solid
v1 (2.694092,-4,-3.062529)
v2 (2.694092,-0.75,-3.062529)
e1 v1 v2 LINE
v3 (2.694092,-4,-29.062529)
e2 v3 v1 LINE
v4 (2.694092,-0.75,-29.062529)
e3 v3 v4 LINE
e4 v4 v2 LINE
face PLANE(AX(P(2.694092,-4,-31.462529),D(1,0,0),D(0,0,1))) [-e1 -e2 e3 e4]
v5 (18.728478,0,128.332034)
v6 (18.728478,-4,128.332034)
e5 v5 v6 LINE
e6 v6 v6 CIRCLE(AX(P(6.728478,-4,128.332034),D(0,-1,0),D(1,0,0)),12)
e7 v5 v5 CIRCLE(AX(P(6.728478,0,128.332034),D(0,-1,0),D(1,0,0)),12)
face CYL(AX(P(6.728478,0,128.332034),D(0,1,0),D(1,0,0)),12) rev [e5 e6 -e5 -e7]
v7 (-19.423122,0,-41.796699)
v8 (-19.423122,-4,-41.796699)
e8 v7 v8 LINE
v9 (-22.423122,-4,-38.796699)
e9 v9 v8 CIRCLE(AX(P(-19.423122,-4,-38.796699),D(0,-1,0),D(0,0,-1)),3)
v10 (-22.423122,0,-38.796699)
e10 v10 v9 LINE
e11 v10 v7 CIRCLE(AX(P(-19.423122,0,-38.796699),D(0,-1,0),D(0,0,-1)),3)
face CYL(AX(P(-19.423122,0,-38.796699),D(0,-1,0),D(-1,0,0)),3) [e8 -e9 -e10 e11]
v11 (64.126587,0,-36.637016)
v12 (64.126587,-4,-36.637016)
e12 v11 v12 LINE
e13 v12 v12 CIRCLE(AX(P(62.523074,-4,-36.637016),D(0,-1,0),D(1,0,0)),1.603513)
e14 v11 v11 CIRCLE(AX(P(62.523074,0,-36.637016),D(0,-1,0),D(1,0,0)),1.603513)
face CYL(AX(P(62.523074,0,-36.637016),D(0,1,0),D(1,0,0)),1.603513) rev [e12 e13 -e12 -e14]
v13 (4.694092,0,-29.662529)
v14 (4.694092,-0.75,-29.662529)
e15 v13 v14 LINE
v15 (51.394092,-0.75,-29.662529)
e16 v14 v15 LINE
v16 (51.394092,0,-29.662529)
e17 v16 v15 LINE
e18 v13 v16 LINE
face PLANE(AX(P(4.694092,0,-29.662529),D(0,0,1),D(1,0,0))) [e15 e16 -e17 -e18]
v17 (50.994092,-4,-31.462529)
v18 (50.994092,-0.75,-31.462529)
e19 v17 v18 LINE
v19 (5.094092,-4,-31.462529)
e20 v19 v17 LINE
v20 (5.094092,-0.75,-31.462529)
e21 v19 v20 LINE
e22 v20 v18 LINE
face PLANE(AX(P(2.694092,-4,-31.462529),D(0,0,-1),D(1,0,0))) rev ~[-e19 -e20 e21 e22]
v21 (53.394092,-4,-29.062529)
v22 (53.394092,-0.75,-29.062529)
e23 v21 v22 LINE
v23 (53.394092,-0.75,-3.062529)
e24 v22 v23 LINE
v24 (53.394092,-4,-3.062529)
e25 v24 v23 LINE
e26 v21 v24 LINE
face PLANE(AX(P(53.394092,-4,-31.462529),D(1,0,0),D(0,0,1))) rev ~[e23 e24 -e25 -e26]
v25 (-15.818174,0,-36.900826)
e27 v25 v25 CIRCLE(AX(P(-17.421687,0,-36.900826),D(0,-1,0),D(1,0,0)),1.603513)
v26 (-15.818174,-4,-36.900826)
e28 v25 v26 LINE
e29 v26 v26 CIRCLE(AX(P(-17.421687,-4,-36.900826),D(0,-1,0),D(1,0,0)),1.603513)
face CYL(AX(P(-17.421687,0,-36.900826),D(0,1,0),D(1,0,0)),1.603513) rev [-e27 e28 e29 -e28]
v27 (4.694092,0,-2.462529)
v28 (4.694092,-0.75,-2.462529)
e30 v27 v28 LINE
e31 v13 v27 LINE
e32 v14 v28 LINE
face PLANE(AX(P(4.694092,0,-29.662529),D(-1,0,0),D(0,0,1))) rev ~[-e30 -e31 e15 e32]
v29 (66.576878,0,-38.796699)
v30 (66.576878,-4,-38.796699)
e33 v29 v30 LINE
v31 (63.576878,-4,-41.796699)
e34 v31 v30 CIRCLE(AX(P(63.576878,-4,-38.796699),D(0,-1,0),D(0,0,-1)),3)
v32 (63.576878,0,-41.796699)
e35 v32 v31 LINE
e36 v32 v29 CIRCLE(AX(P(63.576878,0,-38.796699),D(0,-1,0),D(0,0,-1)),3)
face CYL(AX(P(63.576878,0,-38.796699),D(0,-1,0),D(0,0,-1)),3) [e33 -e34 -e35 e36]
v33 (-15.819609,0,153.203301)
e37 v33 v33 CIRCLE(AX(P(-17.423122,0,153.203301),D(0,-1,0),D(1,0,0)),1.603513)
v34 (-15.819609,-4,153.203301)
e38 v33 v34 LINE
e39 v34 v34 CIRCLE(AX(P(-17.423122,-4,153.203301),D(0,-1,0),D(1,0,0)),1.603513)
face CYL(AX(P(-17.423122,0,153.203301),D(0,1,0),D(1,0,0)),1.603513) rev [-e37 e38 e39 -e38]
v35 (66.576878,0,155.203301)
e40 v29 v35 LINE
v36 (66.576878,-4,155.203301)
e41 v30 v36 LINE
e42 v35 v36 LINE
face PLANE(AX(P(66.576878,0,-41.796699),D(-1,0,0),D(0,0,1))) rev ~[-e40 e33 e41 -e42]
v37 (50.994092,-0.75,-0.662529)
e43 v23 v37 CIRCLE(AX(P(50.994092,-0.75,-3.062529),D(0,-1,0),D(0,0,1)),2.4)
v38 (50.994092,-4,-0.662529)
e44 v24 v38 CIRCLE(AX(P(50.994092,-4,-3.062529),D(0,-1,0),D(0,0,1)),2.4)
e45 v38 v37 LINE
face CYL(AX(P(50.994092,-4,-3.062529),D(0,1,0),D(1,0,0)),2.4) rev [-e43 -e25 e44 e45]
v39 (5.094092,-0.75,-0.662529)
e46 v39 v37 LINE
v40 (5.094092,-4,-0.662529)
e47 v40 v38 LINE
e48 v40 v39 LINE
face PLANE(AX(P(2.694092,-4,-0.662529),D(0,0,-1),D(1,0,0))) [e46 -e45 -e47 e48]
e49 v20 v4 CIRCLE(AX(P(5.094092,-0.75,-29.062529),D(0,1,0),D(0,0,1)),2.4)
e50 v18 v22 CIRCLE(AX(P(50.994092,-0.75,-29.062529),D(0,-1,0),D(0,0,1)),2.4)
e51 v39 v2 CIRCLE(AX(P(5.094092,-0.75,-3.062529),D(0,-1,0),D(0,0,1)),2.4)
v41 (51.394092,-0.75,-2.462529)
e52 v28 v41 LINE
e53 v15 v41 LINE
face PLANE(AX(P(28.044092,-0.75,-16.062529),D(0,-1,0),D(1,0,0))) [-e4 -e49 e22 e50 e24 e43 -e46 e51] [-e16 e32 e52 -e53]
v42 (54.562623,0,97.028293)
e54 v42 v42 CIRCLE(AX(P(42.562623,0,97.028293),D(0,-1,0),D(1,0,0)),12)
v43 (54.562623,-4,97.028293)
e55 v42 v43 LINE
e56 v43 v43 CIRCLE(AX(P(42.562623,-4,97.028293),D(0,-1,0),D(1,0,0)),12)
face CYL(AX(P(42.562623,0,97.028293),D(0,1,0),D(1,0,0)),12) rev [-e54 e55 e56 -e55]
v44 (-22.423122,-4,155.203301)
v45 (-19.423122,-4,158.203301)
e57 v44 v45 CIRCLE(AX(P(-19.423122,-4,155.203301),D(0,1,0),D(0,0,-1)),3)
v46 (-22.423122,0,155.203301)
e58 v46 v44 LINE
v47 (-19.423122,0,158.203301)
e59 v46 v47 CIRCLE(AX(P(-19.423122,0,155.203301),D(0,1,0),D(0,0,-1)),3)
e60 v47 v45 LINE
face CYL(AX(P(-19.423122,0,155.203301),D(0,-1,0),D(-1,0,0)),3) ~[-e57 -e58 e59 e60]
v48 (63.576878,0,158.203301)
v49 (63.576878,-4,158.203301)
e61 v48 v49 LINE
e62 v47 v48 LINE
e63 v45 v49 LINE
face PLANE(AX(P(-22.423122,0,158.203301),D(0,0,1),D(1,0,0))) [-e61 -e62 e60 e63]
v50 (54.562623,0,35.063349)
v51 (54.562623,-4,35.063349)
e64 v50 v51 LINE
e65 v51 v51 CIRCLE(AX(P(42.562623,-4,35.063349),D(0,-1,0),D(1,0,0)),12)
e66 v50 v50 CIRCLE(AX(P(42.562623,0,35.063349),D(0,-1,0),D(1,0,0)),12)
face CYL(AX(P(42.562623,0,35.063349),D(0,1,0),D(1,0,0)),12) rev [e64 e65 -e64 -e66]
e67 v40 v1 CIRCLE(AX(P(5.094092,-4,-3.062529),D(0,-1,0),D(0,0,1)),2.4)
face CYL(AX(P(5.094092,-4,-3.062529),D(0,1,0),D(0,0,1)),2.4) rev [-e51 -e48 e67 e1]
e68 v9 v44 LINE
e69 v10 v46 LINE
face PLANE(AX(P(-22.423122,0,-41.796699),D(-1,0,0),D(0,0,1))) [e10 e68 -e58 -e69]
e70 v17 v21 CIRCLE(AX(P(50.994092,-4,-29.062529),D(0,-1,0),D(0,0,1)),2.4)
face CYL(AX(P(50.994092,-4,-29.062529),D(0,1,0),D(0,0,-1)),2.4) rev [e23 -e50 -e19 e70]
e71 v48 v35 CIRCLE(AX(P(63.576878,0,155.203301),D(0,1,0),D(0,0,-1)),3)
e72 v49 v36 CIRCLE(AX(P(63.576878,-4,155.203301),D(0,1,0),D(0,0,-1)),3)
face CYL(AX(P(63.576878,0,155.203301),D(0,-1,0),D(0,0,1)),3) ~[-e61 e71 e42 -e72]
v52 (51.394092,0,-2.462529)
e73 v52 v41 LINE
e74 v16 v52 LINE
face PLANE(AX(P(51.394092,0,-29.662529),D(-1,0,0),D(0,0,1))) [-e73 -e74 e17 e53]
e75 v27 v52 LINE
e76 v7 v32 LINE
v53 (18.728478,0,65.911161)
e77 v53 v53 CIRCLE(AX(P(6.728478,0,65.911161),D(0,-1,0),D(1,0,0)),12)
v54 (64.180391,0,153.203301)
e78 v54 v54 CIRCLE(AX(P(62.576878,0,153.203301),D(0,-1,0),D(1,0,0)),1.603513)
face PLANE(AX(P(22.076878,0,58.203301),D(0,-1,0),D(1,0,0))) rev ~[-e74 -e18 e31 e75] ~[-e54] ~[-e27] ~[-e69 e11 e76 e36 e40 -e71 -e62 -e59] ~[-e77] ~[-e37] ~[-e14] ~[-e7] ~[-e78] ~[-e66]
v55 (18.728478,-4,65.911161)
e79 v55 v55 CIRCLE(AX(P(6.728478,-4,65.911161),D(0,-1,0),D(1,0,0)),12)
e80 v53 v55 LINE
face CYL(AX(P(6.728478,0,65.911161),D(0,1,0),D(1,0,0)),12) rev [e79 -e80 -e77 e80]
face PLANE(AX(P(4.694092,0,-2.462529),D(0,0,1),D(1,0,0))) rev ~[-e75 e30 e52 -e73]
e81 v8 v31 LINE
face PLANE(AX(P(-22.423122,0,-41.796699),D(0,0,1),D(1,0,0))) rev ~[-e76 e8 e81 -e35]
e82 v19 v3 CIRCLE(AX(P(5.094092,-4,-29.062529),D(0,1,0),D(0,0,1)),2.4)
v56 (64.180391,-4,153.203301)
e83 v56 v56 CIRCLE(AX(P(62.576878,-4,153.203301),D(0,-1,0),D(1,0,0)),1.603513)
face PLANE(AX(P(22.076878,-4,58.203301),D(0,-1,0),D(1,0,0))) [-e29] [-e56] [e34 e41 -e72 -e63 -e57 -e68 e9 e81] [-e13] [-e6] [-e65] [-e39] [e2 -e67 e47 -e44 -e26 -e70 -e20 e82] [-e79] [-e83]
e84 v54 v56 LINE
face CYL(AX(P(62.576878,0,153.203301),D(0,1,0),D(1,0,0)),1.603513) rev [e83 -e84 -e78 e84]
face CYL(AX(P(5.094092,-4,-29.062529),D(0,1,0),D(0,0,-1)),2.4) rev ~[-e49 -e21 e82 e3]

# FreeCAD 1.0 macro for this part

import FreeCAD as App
import Part
import Sketcher
from FreeCAD import Vector
Q = App.Units.Quantity


def edges_at(feature, points):
    """Names of the edges that pass closest to the given points."""
    edges = feature.Shape.Edges
    near = lambda p: min(range(len(edges)), key=lambda i: edges[i].distToShape(Part.Vertex(*p))[0])
    return sorted({f"Edge{near(p) + 1}" for p in points})

doc = App.newDocument("Part")
body = doc.addObject("PartDesign::Body", "Body")

sketch1 = body.newObject("Sketcher::SketchObject", "Sketch")
sketch1.AttachmentSupport = (doc.getObject("XZ_Plane"), [""])
sketch1.MapMode = "FlatFace"
sketch1.addGeometry([
    Part.LineSegment(Vector(-22.4, 158.2, 0), Vector(-22.4, -41.8, 0)),
    Part.LineSegment(Vector(-22.4, -41.8, 0), Vector(66.6, -41.8, 0)),
    Part.LineSegment(Vector(66.6, -41.8, 0), Vector(66.6, 158.2, 0)),
    Part.LineSegment(Vector(66.6, 158.2, 0), Vector(-22.4, 158.2, 0)),
    Part.Circle(Vector(-17.4, -36.9, 0), Vector(0, 0, 1), 1.6),
    Part.LineSegment(Vector(51.4, -29.7, 0), Vector(4.7, -29.7, 0)),
    Part.LineSegment(Vector(4.7, -29.7, 0), Vector(4.7, -2.5, 0)),
    Part.LineSegment(Vector(4.7, -2.5, 0), Vector(51.4, -2.5, 0)),
    Part.LineSegment(Vector(51.4, -2.5, 0), Vector(51.4, -29.7, 0)),
    Part.Circle(Vector(62.5, -36.6, 0), Vector(0, 0, 1), 1.6),
    Part.Circle(Vector(42.6, 35.1, 0), Vector(0, 0, 1), 12),
    Part.Circle(Vector(6.7, 65.9, 0), Vector(0, 0, 1), 12),
    Part.Circle(Vector(-17.4, 153.2, 0), Vector(0, 0, 1), 1.6),
    Part.Circle(Vector(6.7, 128.3, 0), Vector(0, 0, 1), 12),
    Part.Circle(Vector(42.6, 97, 0), Vector(0, 0, 1), 12),
    Part.Circle(Vector(62.6, 153.2, 0), Vector(0, 0, 1), 1.6),
], False)
sketch1.addConstraint([
    Sketcher.Constraint("Coincident", 0, 2, 1, 1),
    Sketcher.Constraint("Coincident", 1, 2, 2, 1),
    Sketcher.Constraint("Coincident", 2, 2, 3, 1),
    Sketcher.Constraint("Coincident", 3, 2, 0, 1),
    Sketcher.Constraint("Coincident", 5, 2, 6, 1),
    Sketcher.Constraint("Coincident", 6, 2, 7, 1),
    Sketcher.Constraint("Coincident", 7, 2, 8, 1),
    Sketcher.Constraint("Coincident", 8, 2, 5, 1),
    Sketcher.Constraint("Vertical", 0),
    Sketcher.Constraint("Horizontal", 1),
    Sketcher.Constraint("Vertical", 2),
    Sketcher.Constraint("Horizontal", 3),
    Sketcher.Constraint("Horizontal", 5),
    Sketcher.Constraint("Vertical", 6),
    Sketcher.Constraint("Horizontal", 7),
    Sketcher.Constraint("Vertical", 8),
    Sketcher.Constraint("Equal", 4, 9),
    Sketcher.Constraint("Equal", 10, 11),
    Sketcher.Constraint("Equal", 9, 12),
    Sketcher.Constraint("Equal", 11, 13),
    Sketcher.Constraint("Equal", 13, 14),
    Sketcher.Constraint("Equal", 12, 15),
    Sketcher.Constraint("Horizontal", 12, 3, 15, 3),
    Sketcher.Constraint("Vertical", 11, 3, 13, 3),
    Sketcher.Constraint("Vertical", 10, 3, 14, 3),
    Sketcher.Constraint("Diameter", 10, Q("24 mm")),
    Sketcher.Constraint("DistanceX", 1, 1, 1, 2, Q("89 mm")),
    Sketcher.Constraint("DistanceY", 0, 2, 0, 1, Q("200 mm")),
    Sketcher.Constraint("DistanceX", 5, 2, 5, 1, Q("46.7 mm")),
    Sketcher.Constraint("DistanceY", 6, 1, 6, 2, Q("27.2 mm")),
    Sketcher.Constraint("DistanceX", 12, 3, 15, 3, Q("80 mm")),
    Sketcher.Constraint("DistanceX", 15, 3, 2, 2, Q("4 mm")),
    Sketcher.Constraint("DistanceY", 15, 3, 2, 2, Q("5 mm")),
    Sketcher.Constraint("Diameter", 4, Q("3.207026 mm")),
    Sketcher.Constraint("DistanceY", -1, 1, 12, 3, Q("153.203301 mm")),
    Sketcher.Constraint("DistanceX", 12, 3, 11, 3, Q("24.1516 mm")),
    Sketcher.Constraint("DistanceY", -1, 1, 10, 3, Q("35.063349 mm")),
    Sketcher.Constraint("DistanceY", -1, 1, 11, 3, Q("65.911161 mm")),
    Sketcher.Constraint("DistanceX", 12, 3, -1, 1, Q("17.423122 mm")),
    Sketcher.Constraint("DistanceY", 5, 2, -1, 1, Q("29.662529 mm")),
    Sketcher.Constraint("DistanceX", 4, 3, 9, 3, Q("79.944761 mm")),
    Sketcher.Constraint("DistanceY", 4, 3, 9, 3, Q("0.26381 mm")),
    Sketcher.Constraint("DistanceX", 10, 3, 9, 3, Q("19.960451 mm")),
    Sketcher.Constraint("DistanceY", 4, 3, 13, 3, Q("165.23286 mm")),
    Sketcher.Constraint("DistanceY", 11, 3, 14, 3, Q("31.117132 mm")),
    Sketcher.Constraint("DistanceY", 14, 3, 13, 3, Q("31.303741 mm")),
    Sketcher.Constraint("DistanceX", 4, 3, 5, 2, Q("22.115779 mm")),
    Sketcher.Constraint("DistanceX", 4, 3, -1, 1, Q("17.421687 mm")),
])
pad1 = body.newObject("PartDesign::Pad", "Pad")
pad1.Profile = sketch1
pad1.Length = 4
doc.recompute()

fillet = body.newObject("PartDesign::Fillet", "Fillet")
fillet.Base = (pad1, edges_at(pad1, [
    (-22.423, -2, 158.203),
    (66.577, -2, 158.203),
    (66.577, -2, -41.797),
    (-22.423, -2, -41.797),
]))
fillet.Radius = 3

sketch2 = body.newObject("Sketcher::SketchObject", "Sketch001")
sketch2.AttachmentSupport = (doc.getObject("XZ_Plane"), [""])
sketch2.MapMode = "FlatFace"
sketch2.AttachmentOffset = App.Placement(Vector(0, 0, 4), App.Rotation())
sketch2.addGeometry([
    Part.LineSegment(Vector(3, -1, 0), Vector(3, -31, 0)),
    Part.LineSegment(Vector(3, -31, 0), Vector(53, -31, 0)),
    Part.LineSegment(Vector(53, -31, 0), Vector(53, -1, 0)),
    Part.LineSegment(Vector(53, -1, 0), Vector(3, -1, 0)),
], False)
sketch2.addConstraint([
    Sketcher.Constraint("Coincident", 0, 2, 1, 1),
    Sketcher.Constraint("Coincident", 1, 2, 2, 1),
    Sketcher.Constraint("Coincident", 2, 2, 3, 1),
    Sketcher.Constraint("Coincident", 3, 2, 0, 1),
    Sketcher.Constraint("Vertical", 0),
    Sketcher.Constraint("Horizontal", 1),
    Sketcher.Constraint("Vertical", 2),
    Sketcher.Constraint("Horizontal", 3),
    Sketcher.Constraint("DistanceX", 1, 1, 1, 2, Q("50.7 mm")),
    Sketcher.Constraint("DistanceY", 0, 2, 0, 1, Q("30.8 mm")),
    Sketcher.Constraint("DistanceX", -1, 1, 0, 2, Q("2.694092 mm")),
    Sketcher.Constraint("DistanceY", 0, 2, -1, 1, Q("31.462529 mm")),
])
pocket1 = body.newObject("PartDesign::Pocket", "Pocket")
pocket1.Profile = sketch2
pocket1.Length = 3.25
doc.recompute()

fillet2 = body.newObject("PartDesign::Fillet", "Fillet001")
fillet2.Base = (pocket1, edges_at(pocket1, [
    (2.694, -2.375, -0.663),
    (53.394, -2.375, -31.463),
    (2.694, -2.375, -31.463),
    (53.394, -2.375, -0.663),
]))
fillet2.Radius = 2.4

doc.recompute()
